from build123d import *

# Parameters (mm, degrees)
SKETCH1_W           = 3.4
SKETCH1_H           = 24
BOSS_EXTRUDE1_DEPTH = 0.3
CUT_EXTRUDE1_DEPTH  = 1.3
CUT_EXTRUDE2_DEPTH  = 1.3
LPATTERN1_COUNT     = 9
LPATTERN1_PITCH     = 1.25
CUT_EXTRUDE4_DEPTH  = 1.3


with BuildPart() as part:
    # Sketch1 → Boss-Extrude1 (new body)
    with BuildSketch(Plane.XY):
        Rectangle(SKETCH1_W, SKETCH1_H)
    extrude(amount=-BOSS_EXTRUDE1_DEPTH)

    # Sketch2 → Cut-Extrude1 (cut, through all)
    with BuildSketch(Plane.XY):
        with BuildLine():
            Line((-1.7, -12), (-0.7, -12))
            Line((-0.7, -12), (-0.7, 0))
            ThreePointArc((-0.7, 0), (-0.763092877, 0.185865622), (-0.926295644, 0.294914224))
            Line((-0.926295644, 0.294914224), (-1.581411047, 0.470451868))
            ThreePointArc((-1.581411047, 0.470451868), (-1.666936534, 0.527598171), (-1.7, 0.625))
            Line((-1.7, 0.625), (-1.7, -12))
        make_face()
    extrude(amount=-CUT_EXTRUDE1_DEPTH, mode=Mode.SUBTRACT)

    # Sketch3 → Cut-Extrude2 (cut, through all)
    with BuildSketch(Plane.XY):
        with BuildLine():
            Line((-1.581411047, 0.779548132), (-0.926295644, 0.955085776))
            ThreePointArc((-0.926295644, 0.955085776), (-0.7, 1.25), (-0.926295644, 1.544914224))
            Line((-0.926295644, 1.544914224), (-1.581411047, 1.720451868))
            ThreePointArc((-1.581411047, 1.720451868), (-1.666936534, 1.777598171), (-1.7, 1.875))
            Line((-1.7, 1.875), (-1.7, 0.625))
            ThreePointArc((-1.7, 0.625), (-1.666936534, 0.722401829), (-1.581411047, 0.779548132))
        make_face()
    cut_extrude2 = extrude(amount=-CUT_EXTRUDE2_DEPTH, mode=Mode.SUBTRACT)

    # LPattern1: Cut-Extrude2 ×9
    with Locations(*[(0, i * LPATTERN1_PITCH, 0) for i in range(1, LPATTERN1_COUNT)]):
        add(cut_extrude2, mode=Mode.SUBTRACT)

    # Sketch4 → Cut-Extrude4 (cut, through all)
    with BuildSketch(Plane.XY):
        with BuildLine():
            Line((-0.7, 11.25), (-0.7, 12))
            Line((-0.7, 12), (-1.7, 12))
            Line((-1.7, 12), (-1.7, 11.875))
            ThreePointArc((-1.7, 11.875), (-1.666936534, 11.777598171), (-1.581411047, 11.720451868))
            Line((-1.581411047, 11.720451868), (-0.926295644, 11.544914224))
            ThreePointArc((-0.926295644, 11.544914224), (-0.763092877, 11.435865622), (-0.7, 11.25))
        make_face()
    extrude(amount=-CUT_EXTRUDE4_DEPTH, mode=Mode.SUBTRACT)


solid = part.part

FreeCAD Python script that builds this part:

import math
import FreeCAD as App
import Part
import Sketcher
from FreeCAD import Vector
Q = App.Units.Quantity

doc = App.newDocument("Part")
params = doc.addObject("Spreadsheet::Sheet", "Params")
for row, (alias, value) in enumerate([
    ("sketch1_height", "24 mm"),
    ("sketch1_width", "3.4 mm"),
    ("pad1_length", "0.3 mm"),
    ("sketch2_width", "1 mm"),
    ("sketch2_height", "12 mm"),
    ("sketch2_radius", "0.16 mm"),
    ("sketch3_radius", "0.16 mm"),
    ("sketch3_height", "1.25 mm"),
    ("linearpattern_pitch", "1.25 mm"),
    ("sketch4_width", "1 mm"),
    ("sketch4_radius", "0.16 mm"),
    ("sketch4_height", "0.75 mm"),
], start=1):
    params.set(f"A{row}", alias)
    params.set(f"B{row}", "=" + value)
    params.setAlias(f"B{row}", alias)

body = doc.addObject("PartDesign::Body", "Body")

# Sketch on XY plane
sketch1 = body.newObject("Sketcher::SketchObject", "Sketch")
sketch1.AttachmentSupport = (doc.getObject("XY_Plane"), [""])
sketch1.MapMode = "FlatFace"
sketch1.addGeometry(Part.LineSegment(Vector(-1.7, 12, 0), Vector(-1.7, -12, 0)), False)
sketch1.addGeometry(Part.LineSegment(Vector(-1.7, -12, 0), Vector(1.7, -12, 0)), False)
sketch1.addGeometry(Part.LineSegment(Vector(1.7, -12, 0), Vector(1.7, 12, 0)), False)
sketch1.addGeometry(Part.LineSegment(Vector(1.7, 12, 0), Vector(-1.7, 12, 0)), False)
sketch1.addConstraint(Sketcher.Constraint("Coincident", 0, 2, 1, 1))
sketch1.addConstraint(Sketcher.Constraint("Coincident", 1, 2, 2, 1))
sketch1.addConstraint(Sketcher.Constraint("Coincident", 2, 2, 3, 1))
sketch1.addConstraint(Sketcher.Constraint("Coincident", 3, 2, 0, 1))
sketch1.addConstraint(Sketcher.Constraint("Vertical", 0))
sketch1.addConstraint(Sketcher.Constraint("Horizontal", 1))
sketch1.addConstraint(Sketcher.Constraint("Vertical", 2))
sketch1.addConstraint(Sketcher.Constraint("Horizontal", 3))
sketch1.addConstraint(Sketcher.Constraint("Symmetric", 0, 2, 2, 2, -1, 1))
sketch1.addConstraint(Sketcher.Constraint("DistanceY", 0, 2, 0, 1, Q("24 mm")))
sketch1.addConstraint(Sketcher.Constraint("DistanceX", 1, 1, 1, 2, Q("3.4 mm")))
sketch1.setExpression("Constraints[9]", "Params.sketch1_height")
sketch1.setExpression("Constraints[10]", "Params.sketch1_width")
pad1 = body.newObject("PartDesign::Pad", "Pad")
pad1.Profile = sketch1
pad1.setExpression("Length", "Params.pad1_length")
pad1.Reversed = True

# Sketch on XY plane
sketch2 = body.newObject("Sketcher::SketchObject", "Sketch001")
sketch2.AttachmentSupport = (doc.getObject("XY_Plane"), [""])
sketch2.MapMode = "FlatFace"
sketch2.addGeometry(Part.LineSegment(Vector(-1.7, -12, 0), Vector(-0.7, -12, 0)), False)
sketch2.addGeometry(Part.LineSegment(Vector(-0.7, -12, 0), Vector(-0.7, 0, 0)), False)
sketch2.addGeometry(Part.ArcOfCircle(Part.Circle(Vector(-1.01, 0, 0), Vector(0, 0, 1), 0.31), math.radians(0), math.radians(75)), False)
sketch2.addGeometry(Part.LineSegment(Vector(-0.93, 0.29, 0), Vector(-1.58, 0.47, 0)), False)
sketch2.addGeometry(Part.ArcOfCircle(Part.Circle(Vector(-1.54, 0.62, 0), Vector(0, 0, 1), 0.16), math.radians(180), math.radians(255)), False)
sketch2.addGeometry(Part.LineSegment(Vector(-1.7, 0.62, 0), Vector(-1.7, -12, 0)), False)
sketch2.addConstraint(Sketcher.Constraint("Coincident", 0, 2, 1, 1))
sketch2.addConstraint(Sketcher.Constraint("Tangent", 1, 2, 2, 1))
sketch2.addConstraint(Sketcher.Constraint("Tangent", 2, 2, 3, 1))
sketch2.addConstraint(Sketcher.Constraint("Tangent", 3, 2, 4, 2))
sketch2.addConstraint(Sketcher.Constraint("Tangent", 4, 1, 5, 1))
sketch2.addConstraint(Sketcher.Constraint("Coincident", 5, 2, 0, 1))
sketch2.addConstraint(Sketcher.Constraint("Horizontal", 0))
sketch2.addConstraint(Sketcher.Constraint("Vertical", 1))
sketch2.addConstraint(Sketcher.Constraint("Vertical", 5))
sketch2.addConstraint(Sketcher.Constraint("PointOnObject", 2, 3, -1))
sketch2.addConstraint(Sketcher.Constraint("DistanceX", 0, 1, 0, 2, Q("1 mm")))
sketch2.addConstraint(Sketcher.Constraint("DistanceY", 1, 1, 1, 2, Q("12 mm")))
sketch2.addConstraint(Sketcher.Constraint("Angle", 3, Q("165 deg")))
sketch2.addConstraint(Sketcher.Constraint("Radius", 4, Q("0.16 mm")))
sketch2.addConstraint(Sketcher.Constraint("DistanceX", 0, 2, -1, 1, Q("0.7 mm")))
sketch2.addConstraint(Sketcher.Constraint("DistanceY", 5, 2, 5, 1, Q("12.625 mm")))
sketch2.setExpression("Constraints[10]", "Params.sketch2_width")
sketch2.setExpression("Constraints[11]", "Params.sketch2_height")
sketch2.setExpression("Constraints[13]", "Params.sketch2_radius")
pocket1 = body.newObject("PartDesign::Pocket", "Pocket")
pocket1.Profile = sketch2
pocket1.Type = "ThroughAll"

# Sketch on XY plane
sketch3 = body.newObject("Sketcher::SketchObject", "Sketch002")
sketch3.AttachmentSupport = (doc.getObject("XY_Plane"), [""])
sketch3.MapMode = "FlatFace"
sketch3.addGeometry(Part.LineSegment(Vector(-1.58, 0.78, 0), Vector(-0.93, 0.96, 0)), False)
sketch3.addGeometry(Part.ArcOfCircle(Part.Circle(Vector(-1.01, 1.25, 0), Vector(0, 0, 1), 0.31), math.radians(-75), math.radians(75)), False)
sketch3.addGeometry(Part.LineSegment(Vector(-0.93, 1.54, 0), Vector(-1.58, 1.72, 0)), False)
sketch3.addGeometry(Part.ArcOfCircle(Part.Circle(Vector(-1.54, 1.88, 0), Vector(0, 0, 1), 0.16), math.radians(180), math.radians(255)), False)
sketch3.addGeometry(Part.LineSegment(Vector(-1.7, 1.88, 0), Vector(-1.7, 0.62, 0)), False)
sketch3.addGeometry(Part.ArcOfCircle(Part.Circle(Vector(-1.54, 0.62, 0), Vector(0, 0, 1), 0.16), math.radians(105), math.radians(180)), False)
sketch3.addConstraint(Sketcher.Constraint("Tangent", 0, 2, 1, 1))
sketch3.addConstraint(Sketcher.Constraint("Tangent", 1, 2, 2, 1))
sketch3.addConstraint(Sketcher.Constraint("Tangent", 2, 2, 3, 2))
sketch3.addConstraint(Sketcher.Constraint("Tangent", 3, 1, 4, 1))
sketch3.addConstraint(Sketcher.Constraint("Tangent", 4, 2, 5, 2))
sketch3.addConstraint(Sketcher.Constraint("Tangent", 5, 1, 0, 1))
sketch3.addConstraint(Sketcher.Constraint("Vertical", 4))
sketch3.addConstraint(Sketcher.Constraint("Equal", 3, 5))
sketch3.addConstraint(Sketcher.Constraint("Vertical", 0, 2, 1, 2))
sketch3.addConstraint(Sketcher.Constraint("Angle", 0, Q("15 deg")))
sketch3.addConstraint(Sketcher.Constraint("Radius", 3, Q("0.16 mm")))
sketch3.addConstraint(Sketcher.Constraint("DistanceY", 4, 2, 4, 1, Q("1.25 mm")))
sketch3.addConstraint(Sketcher.Constraint("DistanceX", 3, 1, -1, 1, Q("1.7 mm")))
sketch3.addConstraint(Sketcher.Constraint("DistanceY", -1, 1, 1, 3, Q("1.25 mm")))
sketch3.addConstraint(Sketcher.Constraint("Radius", 1, Q("0.305318 mm")))
sketch3.setExpression("Constraints[10]", "Params.sketch3_radius")
sketch3.setExpression("Constraints[11]", "Params.sketch3_height")
pocket2 = body.newObject("PartDesign::Pocket", "Pocket001")
pocket2.Profile = sketch3
pocket2.Type = "ThroughAll"
doc.recompute()

linearpattern = body.newObject("PartDesign::LinearPattern", "LinearPattern")
linearpattern.Originals = [pocket2]
linearpattern.Direction = (doc.getObject("Y_Axis"), [""])
linearpattern.Mode = "offset"
linearpattern.setExpression("Offset", "Params.linearpattern_pitch")
linearpattern.Occurrences = 9
body.Tip = linearpattern

# Sketch on XY plane
sketch4 = body.newObject("Sketcher::SketchObject", "Sketch003")
sketch4.AttachmentSupport = (doc.getObject("XY_Plane"), [""])
sketch4.MapMode = "FlatFace"
sketch4.addGeometry(Part.LineSegment(Vector(-0.7, 11.25, 0), Vector(-0.7, 12, 0)), False)
sketch4.addGeometry(Part.LineSegment(Vector(-0.7, 12, 0), Vector(-1.7, 12, 0)), False)
sketch4.addGeometry(Part.LineSegment(Vector(-1.7, 12, 0), Vector(-1.7, 11.88, 0)), False)
sketch4.addGeometry(Part.ArcOfCircle(Part.Circle(Vector(-1.54, 11.88, 0), Vector(0, 0, 1), 0.16), math.radians(180), math.radians(255)), False)
sketch4.addGeometry(Part.LineSegment(Vector(-1.58, 11.72, 0), Vector(-0.93, 11.54, 0)), False)
sketch4.addGeometry(Part.ArcOfCircle(Part.Circle(Vector(-1.01, 11.25, 0), Vector(0, 0, 1), 0.31), math.radians(0), math.radians(75)), False)
sketch4.addConstraint(Sketcher.Constraint("Coincident", 0, 2, 1, 1))
sketch4.addConstraint(Sketcher.Constraint("Coincident", 1, 2, 2, 1))
sketch4.addConstraint(Sketcher.Constraint("Tangent", 2, 2, 3, 1))
sketch4.addConstraint(Sketcher.Constraint("Tangent", 3, 2, 4, 1))
sketch4.addConstraint(Sketcher.Constraint("Tangent", 4, 2, 5, 2))
sketch4.addConstraint(Sketcher.Constraint("Tangent", 5, 1, 0, 1))
sketch4.addConstraint(Sketcher.Constraint("Vertical", 0))
sketch4.addConstraint(Sketcher.Constraint("Horizontal", 1))
sketch4.addConstraint(Sketcher.Constraint("Vertical", 2))
sketch4.addConstraint(Sketcher.Constraint("DistanceX", 1, 2, 1, 1, Q("1 mm")))
sketch4.addConstraint(Sketcher.Constraint("Angle", 4, Q("-15 deg")))
sketch4.addConstraint(Sketcher.Constraint("Radius", 3, Q("0.16 mm")))
sketch4.addConstraint(Sketcher.Constraint("DistanceY", -1, 1, 0, 2, Q("12 mm")))
sketch4.addConstraint(Sketcher.Constraint("DistanceY", 0, 1, 0, 2, Q("0.75 mm")))
sketch4.addConstraint(Sketcher.Constraint("DistanceX", 0, 2, -1, 1, Q("0.7 mm")))
sketch4.addConstraint(Sketcher.Constraint("DistanceY", 2, 2, 2, 1, Q("0.125 mm")))
sketch4.setExpression("Constraints[9]", "Params.sketch4_width")
sketch4.setExpression("Constraints[11]", "Params.sketch4_radius")
sketch4.setExpression("Constraints[13]", "Params.sketch4_height")
pocket3 = body.newObject("PartDesign::Pocket", "Pocket002")
pocket3.Profile = sketch4
pocket3.Type = "ThroughAll"

doc.recompute()
